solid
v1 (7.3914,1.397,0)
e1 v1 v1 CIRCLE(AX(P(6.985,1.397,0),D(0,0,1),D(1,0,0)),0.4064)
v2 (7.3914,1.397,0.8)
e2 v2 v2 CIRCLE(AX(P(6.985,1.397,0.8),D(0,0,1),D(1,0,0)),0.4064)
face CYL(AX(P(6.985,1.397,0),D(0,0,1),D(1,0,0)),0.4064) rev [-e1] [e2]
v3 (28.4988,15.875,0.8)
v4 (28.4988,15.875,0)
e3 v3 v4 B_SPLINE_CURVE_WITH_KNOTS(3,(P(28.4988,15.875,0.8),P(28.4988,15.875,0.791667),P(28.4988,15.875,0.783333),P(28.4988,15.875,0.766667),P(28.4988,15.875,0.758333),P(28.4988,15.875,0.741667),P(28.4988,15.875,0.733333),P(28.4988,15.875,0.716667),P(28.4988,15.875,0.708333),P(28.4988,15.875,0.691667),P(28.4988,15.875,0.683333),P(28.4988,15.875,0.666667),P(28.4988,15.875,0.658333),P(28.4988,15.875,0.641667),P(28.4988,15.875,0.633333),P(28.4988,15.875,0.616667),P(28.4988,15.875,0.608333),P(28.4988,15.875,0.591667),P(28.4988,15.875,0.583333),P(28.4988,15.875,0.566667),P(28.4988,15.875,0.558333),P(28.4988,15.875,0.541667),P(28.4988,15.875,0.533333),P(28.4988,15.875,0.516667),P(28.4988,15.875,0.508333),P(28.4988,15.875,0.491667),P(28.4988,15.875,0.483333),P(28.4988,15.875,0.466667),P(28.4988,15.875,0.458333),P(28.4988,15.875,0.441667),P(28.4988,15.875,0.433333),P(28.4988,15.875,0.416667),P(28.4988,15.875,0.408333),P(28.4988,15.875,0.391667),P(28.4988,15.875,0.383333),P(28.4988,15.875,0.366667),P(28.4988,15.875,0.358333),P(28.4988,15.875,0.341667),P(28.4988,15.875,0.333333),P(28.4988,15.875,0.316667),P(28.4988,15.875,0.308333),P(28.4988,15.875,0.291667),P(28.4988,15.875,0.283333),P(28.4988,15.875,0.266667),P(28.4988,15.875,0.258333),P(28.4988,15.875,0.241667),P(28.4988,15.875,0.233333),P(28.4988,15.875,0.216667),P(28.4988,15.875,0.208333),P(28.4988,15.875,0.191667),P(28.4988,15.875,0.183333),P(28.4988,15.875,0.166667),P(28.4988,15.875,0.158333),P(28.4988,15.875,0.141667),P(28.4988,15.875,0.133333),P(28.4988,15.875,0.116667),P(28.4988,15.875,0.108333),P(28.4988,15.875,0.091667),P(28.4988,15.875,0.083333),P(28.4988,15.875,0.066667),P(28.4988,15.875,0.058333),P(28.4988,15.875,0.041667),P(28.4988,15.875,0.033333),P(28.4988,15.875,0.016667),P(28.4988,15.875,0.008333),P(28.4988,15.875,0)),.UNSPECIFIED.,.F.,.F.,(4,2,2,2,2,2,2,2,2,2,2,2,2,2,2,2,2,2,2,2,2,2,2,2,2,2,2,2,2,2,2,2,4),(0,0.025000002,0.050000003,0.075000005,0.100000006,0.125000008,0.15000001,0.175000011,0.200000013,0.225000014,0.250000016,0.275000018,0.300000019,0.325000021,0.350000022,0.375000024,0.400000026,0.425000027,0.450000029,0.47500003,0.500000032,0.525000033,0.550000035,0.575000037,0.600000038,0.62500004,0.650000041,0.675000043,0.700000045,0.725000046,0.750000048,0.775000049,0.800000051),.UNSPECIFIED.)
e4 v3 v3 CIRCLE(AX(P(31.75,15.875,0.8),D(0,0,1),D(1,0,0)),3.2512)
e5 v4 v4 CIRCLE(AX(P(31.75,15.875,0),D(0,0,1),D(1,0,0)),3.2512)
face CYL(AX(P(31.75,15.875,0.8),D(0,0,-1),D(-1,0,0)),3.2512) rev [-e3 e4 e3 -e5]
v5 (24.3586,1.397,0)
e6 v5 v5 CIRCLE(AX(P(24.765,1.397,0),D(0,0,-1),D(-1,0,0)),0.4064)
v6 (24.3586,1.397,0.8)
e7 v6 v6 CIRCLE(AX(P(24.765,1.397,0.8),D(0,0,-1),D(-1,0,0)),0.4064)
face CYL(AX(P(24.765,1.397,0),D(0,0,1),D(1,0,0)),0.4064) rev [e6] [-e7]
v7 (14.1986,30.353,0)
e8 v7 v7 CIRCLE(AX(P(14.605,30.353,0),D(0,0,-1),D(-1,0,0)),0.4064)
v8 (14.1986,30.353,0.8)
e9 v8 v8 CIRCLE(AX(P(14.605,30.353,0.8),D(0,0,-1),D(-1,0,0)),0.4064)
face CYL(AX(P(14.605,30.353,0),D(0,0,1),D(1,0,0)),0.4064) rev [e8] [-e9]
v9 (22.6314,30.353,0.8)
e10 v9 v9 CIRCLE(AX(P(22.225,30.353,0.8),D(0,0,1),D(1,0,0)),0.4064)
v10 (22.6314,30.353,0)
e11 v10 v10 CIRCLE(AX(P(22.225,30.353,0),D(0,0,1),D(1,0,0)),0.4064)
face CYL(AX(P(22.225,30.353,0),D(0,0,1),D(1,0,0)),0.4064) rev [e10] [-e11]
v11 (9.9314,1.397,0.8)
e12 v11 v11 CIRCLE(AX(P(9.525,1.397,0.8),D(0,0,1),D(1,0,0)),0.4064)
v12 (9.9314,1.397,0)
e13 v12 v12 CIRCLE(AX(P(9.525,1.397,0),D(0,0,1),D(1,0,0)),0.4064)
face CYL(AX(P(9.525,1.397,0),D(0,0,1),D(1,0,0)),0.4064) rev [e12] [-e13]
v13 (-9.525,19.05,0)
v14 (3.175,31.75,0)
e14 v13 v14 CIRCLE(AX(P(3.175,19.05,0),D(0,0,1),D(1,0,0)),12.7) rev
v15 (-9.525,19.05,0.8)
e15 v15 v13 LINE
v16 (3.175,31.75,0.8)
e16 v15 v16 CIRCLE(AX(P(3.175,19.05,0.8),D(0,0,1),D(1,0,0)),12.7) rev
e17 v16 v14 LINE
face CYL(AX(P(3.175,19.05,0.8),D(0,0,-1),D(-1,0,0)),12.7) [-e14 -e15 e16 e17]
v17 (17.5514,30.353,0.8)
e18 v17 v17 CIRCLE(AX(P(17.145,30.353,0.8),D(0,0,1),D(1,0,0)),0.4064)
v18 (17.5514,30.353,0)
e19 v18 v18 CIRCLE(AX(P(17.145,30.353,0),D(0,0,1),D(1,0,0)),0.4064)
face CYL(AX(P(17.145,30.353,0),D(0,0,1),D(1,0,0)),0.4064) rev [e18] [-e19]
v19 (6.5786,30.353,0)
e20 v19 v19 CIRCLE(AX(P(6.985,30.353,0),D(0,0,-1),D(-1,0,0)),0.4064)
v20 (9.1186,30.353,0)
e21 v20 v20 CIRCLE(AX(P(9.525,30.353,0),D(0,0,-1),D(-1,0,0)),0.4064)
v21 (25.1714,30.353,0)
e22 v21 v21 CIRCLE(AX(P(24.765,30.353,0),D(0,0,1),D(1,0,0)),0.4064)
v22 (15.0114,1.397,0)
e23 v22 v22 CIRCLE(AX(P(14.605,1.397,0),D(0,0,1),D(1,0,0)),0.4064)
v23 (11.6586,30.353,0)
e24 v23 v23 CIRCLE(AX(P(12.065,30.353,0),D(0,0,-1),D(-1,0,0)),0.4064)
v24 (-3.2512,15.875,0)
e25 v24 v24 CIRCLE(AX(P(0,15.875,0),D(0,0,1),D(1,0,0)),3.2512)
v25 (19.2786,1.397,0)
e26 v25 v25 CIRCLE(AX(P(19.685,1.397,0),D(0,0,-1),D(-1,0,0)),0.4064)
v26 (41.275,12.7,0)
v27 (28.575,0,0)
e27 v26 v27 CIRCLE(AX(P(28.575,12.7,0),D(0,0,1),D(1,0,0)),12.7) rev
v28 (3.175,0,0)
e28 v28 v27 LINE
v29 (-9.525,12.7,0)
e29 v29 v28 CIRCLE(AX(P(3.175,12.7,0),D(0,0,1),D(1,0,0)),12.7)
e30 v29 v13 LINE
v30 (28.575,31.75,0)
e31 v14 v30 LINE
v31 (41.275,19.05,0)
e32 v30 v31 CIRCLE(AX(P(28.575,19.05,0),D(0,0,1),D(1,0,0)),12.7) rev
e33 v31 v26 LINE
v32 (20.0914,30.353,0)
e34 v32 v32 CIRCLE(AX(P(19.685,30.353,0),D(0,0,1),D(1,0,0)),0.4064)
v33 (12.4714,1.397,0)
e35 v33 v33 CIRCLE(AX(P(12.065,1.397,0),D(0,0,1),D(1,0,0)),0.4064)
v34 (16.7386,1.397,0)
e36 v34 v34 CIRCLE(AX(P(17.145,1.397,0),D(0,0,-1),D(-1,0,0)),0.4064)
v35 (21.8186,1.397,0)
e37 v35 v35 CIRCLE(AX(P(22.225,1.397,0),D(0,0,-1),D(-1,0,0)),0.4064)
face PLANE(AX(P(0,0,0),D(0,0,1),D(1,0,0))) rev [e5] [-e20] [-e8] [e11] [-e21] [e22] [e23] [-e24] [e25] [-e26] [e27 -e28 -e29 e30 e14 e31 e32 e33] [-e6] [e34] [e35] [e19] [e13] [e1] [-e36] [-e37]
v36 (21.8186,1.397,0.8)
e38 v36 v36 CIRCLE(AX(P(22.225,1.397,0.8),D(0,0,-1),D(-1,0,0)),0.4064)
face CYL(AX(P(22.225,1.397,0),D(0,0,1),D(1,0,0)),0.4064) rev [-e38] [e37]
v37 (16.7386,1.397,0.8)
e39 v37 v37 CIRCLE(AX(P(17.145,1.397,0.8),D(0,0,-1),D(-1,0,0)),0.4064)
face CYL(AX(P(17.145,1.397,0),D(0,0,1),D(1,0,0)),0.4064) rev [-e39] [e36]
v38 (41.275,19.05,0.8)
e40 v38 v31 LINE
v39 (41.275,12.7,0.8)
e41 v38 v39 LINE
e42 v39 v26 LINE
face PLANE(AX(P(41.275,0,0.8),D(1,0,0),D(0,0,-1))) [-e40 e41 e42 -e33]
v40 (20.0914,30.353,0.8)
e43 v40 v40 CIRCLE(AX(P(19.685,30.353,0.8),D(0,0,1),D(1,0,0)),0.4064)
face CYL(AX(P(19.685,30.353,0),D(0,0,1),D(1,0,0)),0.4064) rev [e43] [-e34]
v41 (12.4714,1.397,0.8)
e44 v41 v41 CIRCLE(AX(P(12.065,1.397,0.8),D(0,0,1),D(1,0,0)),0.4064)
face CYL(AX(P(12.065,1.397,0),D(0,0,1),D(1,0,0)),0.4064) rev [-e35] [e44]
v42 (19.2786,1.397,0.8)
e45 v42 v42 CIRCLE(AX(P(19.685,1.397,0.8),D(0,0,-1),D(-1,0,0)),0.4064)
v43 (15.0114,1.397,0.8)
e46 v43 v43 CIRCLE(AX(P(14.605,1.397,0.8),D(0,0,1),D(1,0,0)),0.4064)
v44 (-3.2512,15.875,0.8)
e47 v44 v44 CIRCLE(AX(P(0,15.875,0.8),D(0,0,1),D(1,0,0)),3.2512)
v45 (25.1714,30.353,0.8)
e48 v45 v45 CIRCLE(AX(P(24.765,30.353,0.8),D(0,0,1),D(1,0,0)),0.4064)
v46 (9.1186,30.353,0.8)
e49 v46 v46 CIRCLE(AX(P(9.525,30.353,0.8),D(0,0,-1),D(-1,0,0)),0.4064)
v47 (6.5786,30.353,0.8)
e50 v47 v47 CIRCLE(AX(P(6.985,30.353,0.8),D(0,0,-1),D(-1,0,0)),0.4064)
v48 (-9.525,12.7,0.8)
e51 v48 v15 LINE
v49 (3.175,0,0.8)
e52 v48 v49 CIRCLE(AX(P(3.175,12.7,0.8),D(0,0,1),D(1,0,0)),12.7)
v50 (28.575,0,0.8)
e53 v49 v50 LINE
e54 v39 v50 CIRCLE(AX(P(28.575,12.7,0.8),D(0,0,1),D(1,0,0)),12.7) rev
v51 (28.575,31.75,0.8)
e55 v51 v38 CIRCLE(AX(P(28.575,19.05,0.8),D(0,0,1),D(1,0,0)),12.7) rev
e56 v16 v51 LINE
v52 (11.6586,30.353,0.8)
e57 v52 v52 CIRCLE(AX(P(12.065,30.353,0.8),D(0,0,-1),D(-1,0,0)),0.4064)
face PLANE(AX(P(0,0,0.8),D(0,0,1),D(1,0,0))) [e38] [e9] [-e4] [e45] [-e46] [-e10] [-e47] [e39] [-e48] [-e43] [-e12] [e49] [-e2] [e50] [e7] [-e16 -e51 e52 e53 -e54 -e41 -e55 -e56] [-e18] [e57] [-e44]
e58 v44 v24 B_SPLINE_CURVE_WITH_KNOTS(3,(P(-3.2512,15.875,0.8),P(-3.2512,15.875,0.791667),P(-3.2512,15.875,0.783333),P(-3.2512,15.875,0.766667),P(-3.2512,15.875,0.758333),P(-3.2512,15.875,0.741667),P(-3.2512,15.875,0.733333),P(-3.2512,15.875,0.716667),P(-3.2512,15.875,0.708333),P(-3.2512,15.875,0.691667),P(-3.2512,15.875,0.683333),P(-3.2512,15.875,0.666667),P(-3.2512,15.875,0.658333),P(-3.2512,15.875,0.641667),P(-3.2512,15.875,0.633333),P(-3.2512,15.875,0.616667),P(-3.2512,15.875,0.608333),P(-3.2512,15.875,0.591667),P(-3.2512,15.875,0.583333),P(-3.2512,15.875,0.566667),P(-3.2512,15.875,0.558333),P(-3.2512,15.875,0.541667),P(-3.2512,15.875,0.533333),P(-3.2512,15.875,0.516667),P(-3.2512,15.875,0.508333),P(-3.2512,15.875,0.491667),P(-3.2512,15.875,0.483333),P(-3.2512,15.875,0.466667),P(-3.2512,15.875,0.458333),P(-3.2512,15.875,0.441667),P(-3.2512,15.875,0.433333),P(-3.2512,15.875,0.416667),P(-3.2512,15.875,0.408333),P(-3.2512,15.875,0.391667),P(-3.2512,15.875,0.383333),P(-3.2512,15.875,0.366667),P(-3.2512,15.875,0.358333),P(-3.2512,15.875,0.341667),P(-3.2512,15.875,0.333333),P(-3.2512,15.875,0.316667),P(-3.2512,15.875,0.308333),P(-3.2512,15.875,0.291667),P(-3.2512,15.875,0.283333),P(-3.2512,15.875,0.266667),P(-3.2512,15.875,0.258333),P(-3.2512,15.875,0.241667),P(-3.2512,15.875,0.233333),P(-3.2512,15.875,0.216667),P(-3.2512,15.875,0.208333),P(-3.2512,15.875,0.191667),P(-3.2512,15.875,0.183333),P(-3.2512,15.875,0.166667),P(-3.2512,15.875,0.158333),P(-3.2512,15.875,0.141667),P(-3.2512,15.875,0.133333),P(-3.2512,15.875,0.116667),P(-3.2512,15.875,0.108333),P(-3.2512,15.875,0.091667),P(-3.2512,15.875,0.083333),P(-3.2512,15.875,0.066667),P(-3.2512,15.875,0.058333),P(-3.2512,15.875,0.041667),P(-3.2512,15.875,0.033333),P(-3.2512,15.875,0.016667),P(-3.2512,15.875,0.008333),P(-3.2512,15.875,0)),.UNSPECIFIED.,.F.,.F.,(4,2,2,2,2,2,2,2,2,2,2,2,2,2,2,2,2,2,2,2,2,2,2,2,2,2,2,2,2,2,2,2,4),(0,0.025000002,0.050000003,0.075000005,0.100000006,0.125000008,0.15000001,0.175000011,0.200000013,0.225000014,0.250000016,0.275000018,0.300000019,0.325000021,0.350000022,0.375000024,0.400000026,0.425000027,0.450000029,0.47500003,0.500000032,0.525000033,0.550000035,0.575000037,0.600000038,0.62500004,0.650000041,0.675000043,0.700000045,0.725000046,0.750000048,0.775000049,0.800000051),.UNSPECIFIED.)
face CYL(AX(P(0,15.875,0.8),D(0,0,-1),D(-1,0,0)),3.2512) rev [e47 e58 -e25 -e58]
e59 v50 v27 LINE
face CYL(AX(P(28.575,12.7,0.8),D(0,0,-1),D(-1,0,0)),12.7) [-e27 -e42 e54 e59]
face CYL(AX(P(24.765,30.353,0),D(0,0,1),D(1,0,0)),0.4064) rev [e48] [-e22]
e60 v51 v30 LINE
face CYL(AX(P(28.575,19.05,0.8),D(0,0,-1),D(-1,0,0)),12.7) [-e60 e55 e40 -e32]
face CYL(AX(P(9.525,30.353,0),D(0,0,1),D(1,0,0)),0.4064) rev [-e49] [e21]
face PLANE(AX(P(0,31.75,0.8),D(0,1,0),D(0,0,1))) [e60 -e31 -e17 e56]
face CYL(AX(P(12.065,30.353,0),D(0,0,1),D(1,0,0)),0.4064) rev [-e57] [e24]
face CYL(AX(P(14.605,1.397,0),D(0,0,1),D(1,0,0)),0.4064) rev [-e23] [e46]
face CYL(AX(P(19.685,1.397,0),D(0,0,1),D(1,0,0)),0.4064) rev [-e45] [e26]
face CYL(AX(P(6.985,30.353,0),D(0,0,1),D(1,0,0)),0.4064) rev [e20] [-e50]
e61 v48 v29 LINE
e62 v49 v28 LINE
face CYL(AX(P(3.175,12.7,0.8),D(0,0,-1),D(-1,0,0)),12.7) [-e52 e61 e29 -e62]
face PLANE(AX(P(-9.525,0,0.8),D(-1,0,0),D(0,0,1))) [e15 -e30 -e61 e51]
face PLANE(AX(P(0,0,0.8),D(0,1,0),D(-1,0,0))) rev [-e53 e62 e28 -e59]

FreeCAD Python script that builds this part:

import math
import FreeCAD as App
import Part
import Sketcher
from FreeCAD import Vector
Q = App.Units.Quantity

doc = App.newDocument("Part")
body = doc.addObject("PartDesign::Body", "Body")

sketch1 = doc.addObject("Sketcher::SketchObject", "Sketch")
body.addObject(sketch1)
sketch1.AttachmentSupport = (doc.XY_Plane, [""])
sketch1.MapMode = "FlatFace"
sketch1.addGeometry([
    Part.LineSegment(Vector(28.6, 31.8, 0), Vector(3.2, 31.8, 0)),
    Part.ArcOfCircle(Part.Circle(Vector(3.2, 19.1, 0), Vector(0, 0, 1), 12.7), math.radians(90), math.radians(180)),
    Part.LineSegment(Vector(-9.5, 19.1, 0), Vector(-9.5, 12.7, 0)),
    Part.ArcOfCircle(Part.Circle(Vector(3.2, 12.7, 0), Vector(0, 0, 1), 12.7), math.radians(180), math.radians(270)),
    Part.LineSegment(Vector(3.2, 0, 0), Vector(28.6, 0, 0)),
    Part.ArcOfCircle(Part.Circle(Vector(28.6, 12.7, 0), Vector(0, 0, 1), 12.7), math.radians(-90), math.radians(0)),
    Part.LineSegment(Vector(41.3, 12.7, 0), Vector(41.3, 19.1, 0)),
    Part.ArcOfCircle(Part.Circle(Vector(28.6, 19.1, 0), Vector(0, 0, 1), 12.7), math.radians(0), math.radians(90)),
    Part.Circle(Vector(0, 15.9, 0), Vector(0, 0, 1), 3.3),
    Part.Circle(Vector(31.8, 15.9, 0), Vector(0, 0, 1), 3.3),
], False)
sketch1.addConstraint([
    Sketcher.Constraint("Tangent", 0, 2, 1, 1),
    Sketcher.Constraint("Tangent", 1, 2, 2, 1),
    Sketcher.Constraint("Tangent", 2, 2, 3, 1),
    Sketcher.Constraint("Tangent", 3, 2, 4, 1),
    Sketcher.Constraint("Tangent", 4, 2, 5, 1),
    Sketcher.Constraint("Tangent", 5, 2, 6, 1),
    Sketcher.Constraint("Tangent", 6, 2, 7, 1),
    Sketcher.Constraint("Tangent", 7, 2, 0, 1),
    Sketcher.Constraint("Horizontal", 0),
    Sketcher.Constraint("Vertical", 2),
    Sketcher.Constraint("Horizontal", 4),
    Sketcher.Constraint("Vertical", 6),
    Sketcher.Constraint("Equal", 1, 3),
    Sketcher.Constraint("Equal", 3, 5),
    Sketcher.Constraint("Equal", 5, 7),
    Sketcher.Constraint("Equal", 8, 9),
    Sketcher.Constraint("PointOnObject", 8, 3, -2),
    Sketcher.Constraint("PointOnObject", 3, 2, -1),
    Sketcher.Constraint("Horizontal", 8, 3, 9, 3),
    Sketcher.Constraint("Radius", 1, Q("0.5 in")),
    Sketcher.Constraint("DistanceX", 0, 2, 0, 1, Q("1 in")),
    Sketcher.Constraint("Diameter", 8, Q("0.256 in")),
    Sketcher.Constraint("DistanceY", 2, 2, 2, 1, Q("0.25 in")),
    Sketcher.Constraint("DistanceX", -1, 1, 9, 3, Q("1.25 in")),
    Sketcher.Constraint("DistanceX", -1, 1, 1, 3, Q("0.125 in")),
    Sketcher.Constraint("DistanceY", -1, 1, 8, 3, Q("0.625 in")),
])
pad1 = doc.addObject("PartDesign::Pad", "Pad")
body.addObject(pad1)
pad1.Profile = sketch1
pad1.Length = 0.8

sketch2 = doc.addObject("Sketcher::SketchObject", "Sketch001")
body.addObject(sketch2)
sketch2.AttachmentSupport = (doc.XY_Plane, [""])
sketch2.MapMode = "FlatFace"
sketch2.AttachmentOffset = App.Placement(Vector(0, 0, 0.8), App.Rotation())
sketch2.addGeometry([
    Part.Circle(Vector(14.61, 30.35, 0), Vector(0, 0, 1), 0.41),
    Part.Circle(Vector(12.06, 30.35, 0), Vector(0, 0, 1), 0.41),
    Part.Circle(Vector(9.53, 30.35, 0), Vector(0, 0, 1), 0.41),
    Part.Circle(Vector(6.99, 30.35, 0), Vector(0, 0, 1), 0.41),
    Part.Circle(Vector(24.77, 30.35, 0), Vector(0, 0, 1), 0.41),
    Part.Circle(Vector(22.23, 30.35, 0), Vector(0, 0, 1), 0.41),
    Part.Circle(Vector(19.68, 30.35, 0), Vector(0, 0, 1), 0.41),
    Part.Circle(Vector(17.14, 30.35, 0), Vector(0, 0, 1), 0.41),
    Part.Circle(Vector(17.14, 1.4, 0), Vector(0, 0, 1), 0.41),
    Part.Circle(Vector(19.68, 1.4, 0), Vector(0, 0, 1), 0.41),
    Part.Circle(Vector(22.23, 1.4, 0), Vector(0, 0, 1), 0.41),
    Part.Circle(Vector(24.77, 1.4, 0), Vector(0, 0, 1), 0.41),
    Part.Circle(Vector(6.99, 1.4, 0), Vector(0, 0, 1), 0.41),
    Part.Circle(Vector(9.53, 1.4, 0), Vector(0, 0, 1), 0.41),
    Part.Circle(Vector(12.06, 1.4, 0), Vector(0, 0, 1), 0.41),
    Part.Circle(Vector(14.61, 1.4, 0), Vector(0, 0, 1), 0.41),
], False)
sketch2.addConstraint([
    Sketcher.Constraint("Equal", 0, 1),
    Sketcher.Constraint("Equal", 1, 2),
    Sketcher.Constraint("Equal", 2, 3),
    Sketcher.Constraint("Equal", 3, 4),
    Sketcher.Constraint("Equal", 4, 5),
    Sketcher.Constraint("Equal", 5, 6),
    Sketcher.Constraint("Equal", 6, 7),
    Sketcher.Constraint("Equal", 7, 8),
    Sketcher.Constraint("Equal", 8, 9),
    Sketcher.Constraint("Equal", 9, 10),
    Sketcher.Constraint("Equal", 10, 11),
    Sketcher.Constraint("Equal", 11, 12),
    Sketcher.Constraint("Equal", 12, 13),
    Sketcher.Constraint("Equal", 13, 14),
    Sketcher.Constraint("Equal", 14, 15),
    Sketcher.Constraint("Horizontal", 0, 3, 1, 3),
    Sketcher.Constraint("Horizontal", 1, 3, 2, 3),
    Sketcher.Constraint("Horizontal", 2, 3, 3, 3),
    Sketcher.Constraint("Horizontal", 3, 3, 4, 3),
    Sketcher.Constraint("Horizontal", 4, 3, 5, 3),
    Sketcher.Constraint("Horizontal", 5, 3, 6, 3),
    Sketcher.Constraint("Horizontal", 6, 3, 7, 3),
    Sketcher.Constraint("Horizontal", 8, 3, 9, 3),
    Sketcher.Constraint("Horizontal", 9, 3, 10, 3),
    Sketcher.Constraint("Horizontal", 10, 3, 11, 3),
    Sketcher.Constraint("Horizontal", 11, 3, 12, 3),
    Sketcher.Constraint("Horizontal", 12, 3, 13, 3),
    Sketcher.Constraint("Horizontal", 13, 3, 14, 3),
    Sketcher.Constraint("Horizontal", 14, 3, 15, 3),
    Sketcher.Constraint("Vertical", 7, 3, 8, 3),
    Sketcher.Constraint("Vertical", 6, 3, 9, 3),
    Sketcher.Constraint("Vertical", 5, 3, 10, 3),
    Sketcher.Constraint("Vertical", 4, 3, 11, 3),
    Sketcher.Constraint("Vertical", 3, 3, 12, 3),
    Sketcher.Constraint("Vertical", 2, 3, 13, 3),
    Sketcher.Constraint("Vertical", 1, 3, 14, 3),
    Sketcher.Constraint("Vertical", 0, 3, 15, 3),
    Sketcher.Constraint("Diameter", 0, Q("0.032 in")),
    Sketcher.Constraint("DistanceX", 1, 3, 0, 3, Q("0.1 in")),
    Sketcher.Constraint("DistanceX", 2, 3, 1, 3, Q("0.1 in")),
    Sketcher.Constraint("DistanceX", 3, 3, 2, 3, Q("0.1 in")),
    Sketcher.Constraint("DistanceX", 0, 3, 4, 3, Q("0.4 in")),
    Sketcher.Constraint("DistanceX", 5, 3, 4, 3, Q("0.1 in")),
    Sketcher.Constraint("DistanceX", 6, 3, 5, 3, Q("0.1 in")),
    Sketcher.Constraint("DistanceX", 0, 3, 7, 3, Q("0.1 in")),
    Sketcher.Constraint("DistanceY", 8, 3, 7, 3, Q("1.14 in")),
    Sketcher.Constraint("DistanceX", -1, 1, 0, 3, Q("0.575 in")),
    Sketcher.Constraint("DistanceY", -1, 1, 0, 3, Q("1.195 in")),
])
pocket1 = doc.addObject("PartDesign::Pocket", "Pocket")
body.addObject(pocket1)
pocket1.Profile = sketch2
pocket1.Type = "ThroughAll"

doc.recompute()
